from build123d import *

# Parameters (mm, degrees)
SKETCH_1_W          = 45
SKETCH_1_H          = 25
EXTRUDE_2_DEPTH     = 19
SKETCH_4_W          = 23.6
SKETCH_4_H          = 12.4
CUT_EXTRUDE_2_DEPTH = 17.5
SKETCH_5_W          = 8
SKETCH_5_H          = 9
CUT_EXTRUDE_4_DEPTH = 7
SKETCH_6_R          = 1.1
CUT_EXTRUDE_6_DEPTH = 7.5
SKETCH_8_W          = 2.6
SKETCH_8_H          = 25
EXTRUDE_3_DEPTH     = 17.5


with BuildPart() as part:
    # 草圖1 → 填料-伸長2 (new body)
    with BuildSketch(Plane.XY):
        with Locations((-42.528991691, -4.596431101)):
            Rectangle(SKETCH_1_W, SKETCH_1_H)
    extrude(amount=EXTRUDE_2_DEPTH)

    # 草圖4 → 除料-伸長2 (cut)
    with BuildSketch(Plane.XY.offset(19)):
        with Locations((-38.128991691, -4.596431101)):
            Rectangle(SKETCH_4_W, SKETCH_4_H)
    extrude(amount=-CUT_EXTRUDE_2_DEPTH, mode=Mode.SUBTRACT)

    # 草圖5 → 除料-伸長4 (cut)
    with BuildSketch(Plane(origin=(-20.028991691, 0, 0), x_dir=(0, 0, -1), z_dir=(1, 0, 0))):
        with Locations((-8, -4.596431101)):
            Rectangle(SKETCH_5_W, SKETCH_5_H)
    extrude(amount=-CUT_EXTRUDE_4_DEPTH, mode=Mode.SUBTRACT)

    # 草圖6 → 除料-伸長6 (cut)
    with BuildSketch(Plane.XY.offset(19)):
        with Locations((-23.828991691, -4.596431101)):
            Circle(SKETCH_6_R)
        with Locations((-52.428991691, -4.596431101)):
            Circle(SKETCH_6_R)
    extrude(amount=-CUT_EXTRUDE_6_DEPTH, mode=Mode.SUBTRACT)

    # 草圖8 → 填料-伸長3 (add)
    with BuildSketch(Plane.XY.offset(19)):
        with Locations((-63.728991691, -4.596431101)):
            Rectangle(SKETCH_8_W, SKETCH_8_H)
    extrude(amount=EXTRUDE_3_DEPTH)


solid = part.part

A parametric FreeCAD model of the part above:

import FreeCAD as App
import Part
import Sketcher


def add_polygon(sketch, points):
    """Adds a closed chain of lines whose ends are joined by coincident constraints."""
    first, n = sketch.GeometryCount, len(points)
    for a, b in zip(points, points[1:] + points[:1]):
        sketch.addGeometry(Part.LineSegment(App.Vector(*a, 0), App.Vector(*b, 0)), False)
    for i in range(n):
        sketch.addConstraint(Sketcher.Constraint("Coincident", first + i, 2, first + (i + 1) % n, 1))

doc = App.newDocument("Part")
body = doc.addObject("PartDesign::Body", "Body")

sketch1 = body.newObject("Sketcher::SketchObject", "Sketch")
sketch1.AttachmentSupport = (doc.getObject("XY_Plane"), [""])
sketch1.MapMode = "FlatFace"
add_polygon(sketch1, [(-65, 8), (-65, -17), (-20, -17), (-20, 8)])
sketch1.addConstraint(Sketcher.Constraint("Vertical", 0))
sketch1.addConstraint(Sketcher.Constraint("Horizontal", 1))
sketch1.addConstraint(Sketcher.Constraint("Vertical", 2))
sketch1.addConstraint(Sketcher.Constraint("Horizontal", 3))
sketch1.addConstraint(Sketcher.Constraint("DistanceX", 1, 1, 1, 2, 45.0))
sketch1.addConstraint(Sketcher.Constraint("DistanceY", 0, 2, 0, 1, 25.0))
sketch1.addConstraint(Sketcher.Constraint("DistanceX", 0, 2, -1, 1, 65.028992))
sketch1.addConstraint(Sketcher.Constraint("DistanceY", 0, 2, -1, 1, 17.096431))
pad1 = body.newObject("PartDesign::Pad", "Pad")
pad1.Profile = sketch1
pad1.Length = 19

sketch2 = body.newObject("Sketcher::SketchObject", "Sketch001")
sketch2.AttachmentSupport = (doc.getObject("XY_Plane"), [""])
sketch2.MapMode = "FlatFace"
sketch2.AttachmentOffset = App.Placement(App.Vector(0, 0, 19), App.Rotation())
add_polygon(sketch2, [(-50, 2), (-50, -11), (-26, -11), (-26, 2)])
sketch2.addConstraint(Sketcher.Constraint("Vertical", 0))
sketch2.addConstraint(Sketcher.Constraint("Horizontal", 1))
sketch2.addConstraint(Sketcher.Constraint("Vertical", 2))
sketch2.addConstraint(Sketcher.Constraint("Horizontal", 3))
sketch2.addConstraint(Sketcher.Constraint("DistanceX", 1, 1, 1, 2, 23.6))
sketch2.addConstraint(Sketcher.Constraint("DistanceY", 0, 2, 0, 1, 12.4))
sketch2.addConstraint(Sketcher.Constraint("DistanceX", 0, 2, -1, 1, 49.928992))
sketch2.addConstraint(Sketcher.Constraint("DistanceY", 0, 2, -1, 1, 10.796431))
pocket1 = body.newObject("PartDesign::Pocket", "Pocket")
pocket1.Profile = sketch2
pocket1.Length = 17.5

sketch3 = body.newObject("Sketcher::SketchObject", "Sketch002")
sketch3.AttachmentSupport = (doc.getObject("YZ_Plane"), [""])
sketch3.MapMode = "FlatFace"
sketch3.AttachmentOffset = App.Placement(App.Vector(0, 0, -20.028992), App.Rotation())
add_polygon(sketch3, [(0, 12), (-9, 12), (-9, 4), (0, 4)])
sketch3.addConstraint(Sketcher.Constraint("Horizontal", 0))
sketch3.addConstraint(Sketcher.Constraint("Vertical", 1))
sketch3.addConstraint(Sketcher.Constraint("Horizontal", 2))
sketch3.addConstraint(Sketcher.Constraint("Vertical", 3))
sketch3.addConstraint(Sketcher.Constraint("DistanceX", 0, 2, 0, 1, 9.0))
sketch3.addConstraint(Sketcher.Constraint("DistanceY", 1, 2, 1, 1, 8.0))
sketch3.addConstraint(Sketcher.Constraint("DistanceY", -1, 1, 0, 2, 12.0))
sketch3.addConstraint(Sketcher.Constraint("DistanceX", 0, 2, -1, 1, 9.096431))
pocket2 = body.newObject("PartDesign::Pocket", "Pocket001")
pocket2.Profile = sketch3
pocket2.Length = 7

sketch4 = body.newObject("Sketcher::SketchObject", "Sketch003")
sketch4.AttachmentSupport = (doc.getObject("XY_Plane"), [""])
sketch4.MapMode = "FlatFace"
sketch4.AttachmentOffset = App.Placement(App.Vector(0, 0, 19), App.Rotation())
sketch4.addGeometry(Part.Circle(App.Vector(-23.8, -4.6, 0), App.Vector(0, 0, 1), 1.1), False)
sketch4.addGeometry(Part.Circle(App.Vector(-52.4, -4.6, 0), App.Vector(0, 0, 1), 1.1), False)
sketch4.addConstraint(Sketcher.Constraint("Equal", 0, 1))
sketch4.addConstraint(Sketcher.Constraint("Horizontal", 0, 3, 1, 3))
sketch4.addConstraint(Sketcher.Constraint("Diameter", 0, 2.2))
sketch4.addConstraint(Sketcher.Constraint("DistanceX", 1, 3, 0, 3, 28.6))
sketch4.addConstraint(Sketcher.Constraint("DistanceX", 0, 3, -1, 1, 23.828992))
sketch4.addConstraint(Sketcher.Constraint("DistanceY", 0, 3, -1, 1, 4.596431))
pocket3 = body.newObject("PartDesign::Pocket", "Pocket002")
pocket3.Profile = sketch4
pocket3.Length = 7.5

sketch5 = body.newObject("Sketcher::SketchObject", "Sketch004")
sketch5.AttachmentSupport = (doc.getObject("XY_Plane"), [""])
sketch5.MapMode = "FlatFace"
sketch5.AttachmentOffset = App.Placement(App.Vector(0, 0, 19), App.Rotation())
add_polygon(sketch5, [(-65, 7.9), (-65, -17.1), (-62.4, -17.1), (-62.4, 7.9)])
sketch5.addConstraint(Sketcher.Constraint("Vertical", 0))
sketch5.addConstraint(Sketcher.Constraint("Horizontal", 1))
sketch5.addConstraint(Sketcher.Constraint("Vertical", 2))
sketch5.addConstraint(Sketcher.Constraint("Horizontal", 3))
sketch5.addConstraint(Sketcher.Constraint("DistanceY", 0, 2, 0, 1, 25.0))
sketch5.addConstraint(Sketcher.Constraint("DistanceX", 1, 1, 1, 2, 2.6))
sketch5.addConstraint(Sketcher.Constraint("DistanceX", 0, 2, -1, 1, 65.028992))
sketch5.addConstraint(Sketcher.Constraint("DistanceY", 0, 2, -1, 1, 17.096431))
pad2 = body.newObject("PartDesign::Pad", "Pad001")
pad2.Profile = sketch5
pad2.Length = 17.5

doc.recompute()
